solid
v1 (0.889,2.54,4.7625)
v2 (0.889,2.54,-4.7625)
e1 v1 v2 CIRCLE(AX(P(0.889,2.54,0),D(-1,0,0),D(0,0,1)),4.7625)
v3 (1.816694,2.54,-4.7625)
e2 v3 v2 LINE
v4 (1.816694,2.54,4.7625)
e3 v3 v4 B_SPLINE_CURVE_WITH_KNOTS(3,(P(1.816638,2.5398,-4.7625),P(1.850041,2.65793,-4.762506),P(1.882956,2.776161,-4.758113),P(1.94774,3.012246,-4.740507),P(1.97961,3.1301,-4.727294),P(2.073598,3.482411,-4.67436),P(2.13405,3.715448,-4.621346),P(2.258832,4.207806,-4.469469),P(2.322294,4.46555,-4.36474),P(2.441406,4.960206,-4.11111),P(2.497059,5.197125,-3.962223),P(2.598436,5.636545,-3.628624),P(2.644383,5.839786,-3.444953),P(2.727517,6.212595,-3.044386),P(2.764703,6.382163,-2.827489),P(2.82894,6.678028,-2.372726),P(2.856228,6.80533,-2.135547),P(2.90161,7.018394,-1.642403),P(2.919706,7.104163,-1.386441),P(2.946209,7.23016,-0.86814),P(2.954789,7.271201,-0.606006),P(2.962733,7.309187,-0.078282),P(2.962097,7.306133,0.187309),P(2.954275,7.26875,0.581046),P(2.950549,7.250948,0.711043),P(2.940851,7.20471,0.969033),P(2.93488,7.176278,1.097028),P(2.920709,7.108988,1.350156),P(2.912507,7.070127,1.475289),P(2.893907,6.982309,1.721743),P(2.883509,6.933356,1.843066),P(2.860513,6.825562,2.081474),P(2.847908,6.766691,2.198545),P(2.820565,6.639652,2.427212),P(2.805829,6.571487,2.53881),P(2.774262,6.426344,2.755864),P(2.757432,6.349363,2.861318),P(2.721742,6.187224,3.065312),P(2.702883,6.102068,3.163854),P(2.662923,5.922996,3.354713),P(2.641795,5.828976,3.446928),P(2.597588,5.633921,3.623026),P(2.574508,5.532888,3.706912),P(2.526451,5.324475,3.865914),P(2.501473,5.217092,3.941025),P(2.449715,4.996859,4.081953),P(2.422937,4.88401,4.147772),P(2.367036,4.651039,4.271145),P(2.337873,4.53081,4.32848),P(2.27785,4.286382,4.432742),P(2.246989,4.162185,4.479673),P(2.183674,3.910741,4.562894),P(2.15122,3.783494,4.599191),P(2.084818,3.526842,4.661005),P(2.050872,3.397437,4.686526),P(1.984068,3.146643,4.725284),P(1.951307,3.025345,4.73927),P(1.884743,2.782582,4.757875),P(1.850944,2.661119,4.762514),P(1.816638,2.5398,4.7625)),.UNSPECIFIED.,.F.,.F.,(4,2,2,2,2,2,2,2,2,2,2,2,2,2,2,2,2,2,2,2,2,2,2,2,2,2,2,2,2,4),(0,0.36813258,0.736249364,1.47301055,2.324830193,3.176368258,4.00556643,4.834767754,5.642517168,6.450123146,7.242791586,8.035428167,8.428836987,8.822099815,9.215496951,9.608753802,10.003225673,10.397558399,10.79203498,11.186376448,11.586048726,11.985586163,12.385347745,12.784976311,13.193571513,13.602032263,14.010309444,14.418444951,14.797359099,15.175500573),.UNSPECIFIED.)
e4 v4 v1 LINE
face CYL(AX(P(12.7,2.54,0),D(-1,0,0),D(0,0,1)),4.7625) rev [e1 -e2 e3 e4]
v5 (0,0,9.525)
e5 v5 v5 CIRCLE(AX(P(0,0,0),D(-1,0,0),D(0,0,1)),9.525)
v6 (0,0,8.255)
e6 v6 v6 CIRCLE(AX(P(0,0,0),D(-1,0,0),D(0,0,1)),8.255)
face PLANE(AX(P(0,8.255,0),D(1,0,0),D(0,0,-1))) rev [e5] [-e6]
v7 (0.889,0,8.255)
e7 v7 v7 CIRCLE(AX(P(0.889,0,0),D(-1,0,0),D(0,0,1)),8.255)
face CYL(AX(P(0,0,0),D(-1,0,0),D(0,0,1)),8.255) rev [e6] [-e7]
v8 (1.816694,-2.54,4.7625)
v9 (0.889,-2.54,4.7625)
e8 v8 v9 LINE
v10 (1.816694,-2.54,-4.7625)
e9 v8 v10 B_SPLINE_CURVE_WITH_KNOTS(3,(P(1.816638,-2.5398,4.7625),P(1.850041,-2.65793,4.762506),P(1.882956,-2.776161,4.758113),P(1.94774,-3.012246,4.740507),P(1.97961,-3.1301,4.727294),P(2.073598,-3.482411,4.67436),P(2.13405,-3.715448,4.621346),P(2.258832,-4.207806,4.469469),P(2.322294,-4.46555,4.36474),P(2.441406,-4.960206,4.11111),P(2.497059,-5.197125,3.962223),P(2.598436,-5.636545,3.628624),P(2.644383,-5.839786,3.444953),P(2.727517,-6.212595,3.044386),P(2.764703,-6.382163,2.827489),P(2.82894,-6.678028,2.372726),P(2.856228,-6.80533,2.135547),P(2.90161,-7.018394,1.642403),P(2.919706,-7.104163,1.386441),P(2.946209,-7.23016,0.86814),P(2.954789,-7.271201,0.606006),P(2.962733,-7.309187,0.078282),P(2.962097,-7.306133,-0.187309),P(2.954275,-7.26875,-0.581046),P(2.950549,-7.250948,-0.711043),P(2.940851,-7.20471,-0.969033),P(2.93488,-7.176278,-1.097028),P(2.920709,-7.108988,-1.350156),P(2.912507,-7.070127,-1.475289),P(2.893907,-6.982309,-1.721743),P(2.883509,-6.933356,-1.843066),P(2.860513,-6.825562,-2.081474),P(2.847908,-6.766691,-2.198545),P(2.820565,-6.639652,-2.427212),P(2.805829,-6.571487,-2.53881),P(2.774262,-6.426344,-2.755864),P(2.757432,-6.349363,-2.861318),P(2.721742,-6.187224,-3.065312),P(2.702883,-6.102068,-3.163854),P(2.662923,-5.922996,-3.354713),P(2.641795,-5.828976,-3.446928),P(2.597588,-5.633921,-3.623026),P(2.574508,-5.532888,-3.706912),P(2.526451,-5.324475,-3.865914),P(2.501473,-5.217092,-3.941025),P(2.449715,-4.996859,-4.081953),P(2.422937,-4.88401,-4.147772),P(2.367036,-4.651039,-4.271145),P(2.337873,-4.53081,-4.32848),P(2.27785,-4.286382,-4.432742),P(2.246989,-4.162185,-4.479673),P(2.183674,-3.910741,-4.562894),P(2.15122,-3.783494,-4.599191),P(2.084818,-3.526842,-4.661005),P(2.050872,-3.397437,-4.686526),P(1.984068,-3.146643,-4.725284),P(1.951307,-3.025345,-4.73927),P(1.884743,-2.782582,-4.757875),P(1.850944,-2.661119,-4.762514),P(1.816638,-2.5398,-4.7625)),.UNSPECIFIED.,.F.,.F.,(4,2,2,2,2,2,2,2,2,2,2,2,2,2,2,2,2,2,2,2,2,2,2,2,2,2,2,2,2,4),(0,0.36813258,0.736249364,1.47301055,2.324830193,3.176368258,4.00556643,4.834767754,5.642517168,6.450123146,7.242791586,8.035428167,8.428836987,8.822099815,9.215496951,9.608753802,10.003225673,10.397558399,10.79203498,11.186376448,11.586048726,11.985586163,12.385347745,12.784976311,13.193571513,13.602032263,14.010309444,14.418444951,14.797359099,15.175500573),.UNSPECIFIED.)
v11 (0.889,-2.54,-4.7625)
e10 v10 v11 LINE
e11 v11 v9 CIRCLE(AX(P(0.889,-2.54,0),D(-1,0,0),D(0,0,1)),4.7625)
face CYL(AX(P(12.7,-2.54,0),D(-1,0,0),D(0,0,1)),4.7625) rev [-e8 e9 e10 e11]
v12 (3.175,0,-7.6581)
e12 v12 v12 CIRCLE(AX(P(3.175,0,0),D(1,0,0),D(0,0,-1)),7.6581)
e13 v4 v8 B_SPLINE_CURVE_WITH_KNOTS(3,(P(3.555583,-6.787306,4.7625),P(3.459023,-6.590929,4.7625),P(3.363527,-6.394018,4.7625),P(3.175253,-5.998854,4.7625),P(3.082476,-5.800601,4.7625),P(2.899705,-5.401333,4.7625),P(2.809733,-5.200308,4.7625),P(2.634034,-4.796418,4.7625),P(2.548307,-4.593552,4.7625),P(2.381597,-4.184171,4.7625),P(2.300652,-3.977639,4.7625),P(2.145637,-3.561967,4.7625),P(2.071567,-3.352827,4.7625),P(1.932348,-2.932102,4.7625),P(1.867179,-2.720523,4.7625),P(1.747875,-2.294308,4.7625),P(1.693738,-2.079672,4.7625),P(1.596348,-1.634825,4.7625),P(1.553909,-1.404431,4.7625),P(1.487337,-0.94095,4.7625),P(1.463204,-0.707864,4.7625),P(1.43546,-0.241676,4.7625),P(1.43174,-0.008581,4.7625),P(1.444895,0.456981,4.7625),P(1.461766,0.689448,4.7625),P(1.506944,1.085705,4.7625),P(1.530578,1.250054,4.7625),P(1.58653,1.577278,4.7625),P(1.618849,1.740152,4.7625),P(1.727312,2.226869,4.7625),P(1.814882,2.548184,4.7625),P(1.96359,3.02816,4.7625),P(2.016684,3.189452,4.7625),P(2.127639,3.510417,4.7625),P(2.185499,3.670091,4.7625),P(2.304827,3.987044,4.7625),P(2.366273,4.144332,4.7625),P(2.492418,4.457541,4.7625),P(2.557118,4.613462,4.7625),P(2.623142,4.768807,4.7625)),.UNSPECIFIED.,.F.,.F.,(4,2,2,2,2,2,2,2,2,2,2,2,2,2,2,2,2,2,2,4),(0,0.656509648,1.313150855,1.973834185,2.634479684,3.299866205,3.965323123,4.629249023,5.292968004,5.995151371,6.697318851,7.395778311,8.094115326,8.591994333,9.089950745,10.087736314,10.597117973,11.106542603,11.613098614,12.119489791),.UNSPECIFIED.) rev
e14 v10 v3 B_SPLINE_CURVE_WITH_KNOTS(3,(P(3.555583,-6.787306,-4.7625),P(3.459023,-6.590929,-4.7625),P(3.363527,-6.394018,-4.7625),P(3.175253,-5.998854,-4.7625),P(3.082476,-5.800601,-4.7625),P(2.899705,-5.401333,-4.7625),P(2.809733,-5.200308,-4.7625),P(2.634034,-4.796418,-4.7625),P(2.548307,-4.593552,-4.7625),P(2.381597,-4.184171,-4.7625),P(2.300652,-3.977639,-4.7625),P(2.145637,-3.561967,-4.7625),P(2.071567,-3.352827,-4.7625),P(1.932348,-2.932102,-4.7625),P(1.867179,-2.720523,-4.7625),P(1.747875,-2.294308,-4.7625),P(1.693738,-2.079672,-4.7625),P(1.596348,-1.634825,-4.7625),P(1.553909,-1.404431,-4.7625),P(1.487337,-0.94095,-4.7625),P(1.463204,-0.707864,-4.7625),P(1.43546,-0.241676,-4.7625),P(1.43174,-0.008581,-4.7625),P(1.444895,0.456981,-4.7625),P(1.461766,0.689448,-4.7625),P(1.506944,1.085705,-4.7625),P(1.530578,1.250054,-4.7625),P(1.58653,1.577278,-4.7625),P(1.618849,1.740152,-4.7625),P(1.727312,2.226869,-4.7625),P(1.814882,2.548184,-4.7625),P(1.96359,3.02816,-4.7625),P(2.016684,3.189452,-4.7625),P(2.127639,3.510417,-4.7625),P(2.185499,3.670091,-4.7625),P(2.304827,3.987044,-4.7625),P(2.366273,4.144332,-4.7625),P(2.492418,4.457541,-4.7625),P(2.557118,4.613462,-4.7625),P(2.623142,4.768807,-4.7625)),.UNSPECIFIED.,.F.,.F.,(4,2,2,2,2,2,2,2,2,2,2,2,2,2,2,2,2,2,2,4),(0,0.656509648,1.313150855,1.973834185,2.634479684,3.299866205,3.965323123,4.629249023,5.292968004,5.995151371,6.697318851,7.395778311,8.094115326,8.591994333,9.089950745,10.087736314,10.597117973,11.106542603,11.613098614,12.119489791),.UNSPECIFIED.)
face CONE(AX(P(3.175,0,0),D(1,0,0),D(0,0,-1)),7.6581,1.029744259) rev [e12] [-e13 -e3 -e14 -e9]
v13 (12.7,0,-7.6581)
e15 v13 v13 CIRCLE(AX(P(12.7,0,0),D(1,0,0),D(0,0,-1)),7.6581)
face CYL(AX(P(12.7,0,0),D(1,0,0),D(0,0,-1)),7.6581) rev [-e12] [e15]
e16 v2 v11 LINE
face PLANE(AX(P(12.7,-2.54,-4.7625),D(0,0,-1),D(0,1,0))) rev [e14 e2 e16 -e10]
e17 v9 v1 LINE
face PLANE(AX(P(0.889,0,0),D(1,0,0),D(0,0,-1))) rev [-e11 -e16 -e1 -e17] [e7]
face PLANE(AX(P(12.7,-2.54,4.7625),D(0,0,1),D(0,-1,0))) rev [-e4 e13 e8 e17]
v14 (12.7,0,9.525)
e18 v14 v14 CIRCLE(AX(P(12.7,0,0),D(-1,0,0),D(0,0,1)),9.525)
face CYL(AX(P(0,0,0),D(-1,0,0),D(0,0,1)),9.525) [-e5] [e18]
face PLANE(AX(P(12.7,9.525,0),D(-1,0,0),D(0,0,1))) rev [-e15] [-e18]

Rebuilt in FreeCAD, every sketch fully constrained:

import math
import FreeCAD as App
import Part
import Sketcher
from FreeCAD import Vector
Q = App.Units.Quantity


def add_polygon(sketch, points):
    """Adds a closed chain of lines whose ends are joined by coincident constraints."""
    first, n = sketch.GeometryCount, len(points)
    for a, b in zip(points, points[1:] + points[:1]):
        sketch.addGeometry(Part.LineSegment(App.Vector(*a, 0), App.Vector(*b, 0)), False)
    for i in range(n):
        sketch.addConstraint(Sketcher.Constraint("Coincident", first + i, 2, first + (i + 1) % n, 1))

doc = App.newDocument("Part")
body = doc.addObject("PartDesign::Body", "Body")

# Sketch on XY plane
sketch1 = doc.addObject("Sketcher::SketchObject", "Sketch")
body.addObject(sketch1)
sketch1.AttachmentSupport = (doc.XY_Plane, [""])
sketch1.MapMode = "FlatFace"
add_polygon(sketch1, [(12.7, 9.5), (0, 9.5), (0, 8.3), (0.9, 8.3), (0.9, 0), (12.7, 0)])  # lines 0-5
sketch1.addConstraint([
    Sketcher.Constraint("Horizontal", 0),
    Sketcher.Constraint("Vertical", 1),
    Sketcher.Constraint("Horizontal", 2),
    Sketcher.Constraint("Vertical", 3),
    Sketcher.Constraint("Horizontal", 4),
    Sketcher.Constraint("Vertical", 5),
    Sketcher.Constraint("PointOnObject", 0, 2, -2),
    Sketcher.Constraint("PointOnObject", 3, 2, -1),
    Sketcher.Constraint("DistanceX", 0, 2, 0, 1, Q("0.5 in")),
    Sketcher.Constraint("DistanceY", 1, 2, 1, 1, Q("0.05 in")),
    Sketcher.Constraint("DistanceX", 2, 1, 2, 2, Q("0.035 in")),
    Sketcher.Constraint("DistanceY", 3, 2, 3, 1, Q("0.325 in")),
])
revolution = doc.addObject("PartDesign::Revolution", "Revolution")
body.addObject(revolution)
revolution.Profile = sketch1
revolution.ReferenceAxis = (sketch1, ["H_Axis"])
revolution.Angle = 360

# Sketch on YZ plane
sketch2 = doc.addObject("Sketcher::SketchObject", "Sketch001")
body.addObject(sketch2)
sketch2.AttachmentSupport = (doc.YZ_Plane, [""])
sketch2.MapMode = "FlatFace"
sketch2.AttachmentOffset = App.Placement(Vector(0, 0, 0.035 * 25.4), App.Rotation())
sketch2.addGeometry([
    Part.LineSegment(Vector(2.5, -4.8, 0), Vector(-2.5, -4.8, 0)),
    Part.ArcOfCircle(Part.Circle(Vector(-2.5, 0, 0), Vector(0, 0, 1), 4.8), math.radians(90), math.radians(270)),
    Part.LineSegment(Vector(-2.5, 4.8, 0), Vector(2.5, 4.8, 0)),
    Part.ArcOfCircle(Part.Circle(Vector(2.5, 0, 0), Vector(0, 0, 1), 4.8), math.radians(-90), math.radians(90)),
], False)
sketch2.addConstraint([
    Sketcher.Constraint("Tangent", 0, 2, 1, 2),
    Sketcher.Constraint("Tangent", 1, 1, 2, 1),
    Sketcher.Constraint("Tangent", 2, 2, 3, 2),
    Sketcher.Constraint("Tangent", 3, 1, 0, 1),
    Sketcher.Constraint("Horizontal", 0),
    Sketcher.Constraint("Horizontal", 2),
    Sketcher.Constraint("Symmetric", 1, 3, 3, 3, -1, 1),
    Sketcher.Constraint("DistanceX", 0, 2, 0, 1, Q("0.2 in")),
    Sketcher.Constraint("Radius", 1, Q("0.1875 in")),
])
pocket1 = doc.addObject("PartDesign::Pocket", "Pocket")
body.addObject(pocket1)
pocket1.Profile = sketch2
pocket1.Type = "ThroughAll"
pocket1.Reversed = True

# Sketch on YZ plane
sketch3 = doc.addObject("Sketcher::SketchObject", "Sketch002")
body.addObject(sketch3)
sketch3.AttachmentSupport = (doc.YZ_Plane, [""])
sketch3.MapMode = "FlatFace"
sketch3.AttachmentOffset = App.Placement(Vector(0, 0, 0.5 * 25.4), App.Rotation())
sketch3.addGeometry(Part.Circle(Vector(0, 0, 0), Vector(0, 0, 1), 8), False)
sketch3.addConstraint([
    Sketcher.Constraint("Coincident", 0, 3, -1, 1),
    Sketcher.Constraint("Diameter", 0, Q("0.603 in")),
])
doc.recompute()
hole = doc.addObject("PartDesign::Hole", "Hole")
body.addObject(hole)
hole.Profile = sketch3
hole.ThreadType = "None"
hole.Diameter = Q("0.603 in")
hole.DepthType = "Dimension"
hole.Depth = Q("0.375 in")
hole.DrillPoint = "Angled"
hole.DrillPointAngle = 118

doc.recompute()
